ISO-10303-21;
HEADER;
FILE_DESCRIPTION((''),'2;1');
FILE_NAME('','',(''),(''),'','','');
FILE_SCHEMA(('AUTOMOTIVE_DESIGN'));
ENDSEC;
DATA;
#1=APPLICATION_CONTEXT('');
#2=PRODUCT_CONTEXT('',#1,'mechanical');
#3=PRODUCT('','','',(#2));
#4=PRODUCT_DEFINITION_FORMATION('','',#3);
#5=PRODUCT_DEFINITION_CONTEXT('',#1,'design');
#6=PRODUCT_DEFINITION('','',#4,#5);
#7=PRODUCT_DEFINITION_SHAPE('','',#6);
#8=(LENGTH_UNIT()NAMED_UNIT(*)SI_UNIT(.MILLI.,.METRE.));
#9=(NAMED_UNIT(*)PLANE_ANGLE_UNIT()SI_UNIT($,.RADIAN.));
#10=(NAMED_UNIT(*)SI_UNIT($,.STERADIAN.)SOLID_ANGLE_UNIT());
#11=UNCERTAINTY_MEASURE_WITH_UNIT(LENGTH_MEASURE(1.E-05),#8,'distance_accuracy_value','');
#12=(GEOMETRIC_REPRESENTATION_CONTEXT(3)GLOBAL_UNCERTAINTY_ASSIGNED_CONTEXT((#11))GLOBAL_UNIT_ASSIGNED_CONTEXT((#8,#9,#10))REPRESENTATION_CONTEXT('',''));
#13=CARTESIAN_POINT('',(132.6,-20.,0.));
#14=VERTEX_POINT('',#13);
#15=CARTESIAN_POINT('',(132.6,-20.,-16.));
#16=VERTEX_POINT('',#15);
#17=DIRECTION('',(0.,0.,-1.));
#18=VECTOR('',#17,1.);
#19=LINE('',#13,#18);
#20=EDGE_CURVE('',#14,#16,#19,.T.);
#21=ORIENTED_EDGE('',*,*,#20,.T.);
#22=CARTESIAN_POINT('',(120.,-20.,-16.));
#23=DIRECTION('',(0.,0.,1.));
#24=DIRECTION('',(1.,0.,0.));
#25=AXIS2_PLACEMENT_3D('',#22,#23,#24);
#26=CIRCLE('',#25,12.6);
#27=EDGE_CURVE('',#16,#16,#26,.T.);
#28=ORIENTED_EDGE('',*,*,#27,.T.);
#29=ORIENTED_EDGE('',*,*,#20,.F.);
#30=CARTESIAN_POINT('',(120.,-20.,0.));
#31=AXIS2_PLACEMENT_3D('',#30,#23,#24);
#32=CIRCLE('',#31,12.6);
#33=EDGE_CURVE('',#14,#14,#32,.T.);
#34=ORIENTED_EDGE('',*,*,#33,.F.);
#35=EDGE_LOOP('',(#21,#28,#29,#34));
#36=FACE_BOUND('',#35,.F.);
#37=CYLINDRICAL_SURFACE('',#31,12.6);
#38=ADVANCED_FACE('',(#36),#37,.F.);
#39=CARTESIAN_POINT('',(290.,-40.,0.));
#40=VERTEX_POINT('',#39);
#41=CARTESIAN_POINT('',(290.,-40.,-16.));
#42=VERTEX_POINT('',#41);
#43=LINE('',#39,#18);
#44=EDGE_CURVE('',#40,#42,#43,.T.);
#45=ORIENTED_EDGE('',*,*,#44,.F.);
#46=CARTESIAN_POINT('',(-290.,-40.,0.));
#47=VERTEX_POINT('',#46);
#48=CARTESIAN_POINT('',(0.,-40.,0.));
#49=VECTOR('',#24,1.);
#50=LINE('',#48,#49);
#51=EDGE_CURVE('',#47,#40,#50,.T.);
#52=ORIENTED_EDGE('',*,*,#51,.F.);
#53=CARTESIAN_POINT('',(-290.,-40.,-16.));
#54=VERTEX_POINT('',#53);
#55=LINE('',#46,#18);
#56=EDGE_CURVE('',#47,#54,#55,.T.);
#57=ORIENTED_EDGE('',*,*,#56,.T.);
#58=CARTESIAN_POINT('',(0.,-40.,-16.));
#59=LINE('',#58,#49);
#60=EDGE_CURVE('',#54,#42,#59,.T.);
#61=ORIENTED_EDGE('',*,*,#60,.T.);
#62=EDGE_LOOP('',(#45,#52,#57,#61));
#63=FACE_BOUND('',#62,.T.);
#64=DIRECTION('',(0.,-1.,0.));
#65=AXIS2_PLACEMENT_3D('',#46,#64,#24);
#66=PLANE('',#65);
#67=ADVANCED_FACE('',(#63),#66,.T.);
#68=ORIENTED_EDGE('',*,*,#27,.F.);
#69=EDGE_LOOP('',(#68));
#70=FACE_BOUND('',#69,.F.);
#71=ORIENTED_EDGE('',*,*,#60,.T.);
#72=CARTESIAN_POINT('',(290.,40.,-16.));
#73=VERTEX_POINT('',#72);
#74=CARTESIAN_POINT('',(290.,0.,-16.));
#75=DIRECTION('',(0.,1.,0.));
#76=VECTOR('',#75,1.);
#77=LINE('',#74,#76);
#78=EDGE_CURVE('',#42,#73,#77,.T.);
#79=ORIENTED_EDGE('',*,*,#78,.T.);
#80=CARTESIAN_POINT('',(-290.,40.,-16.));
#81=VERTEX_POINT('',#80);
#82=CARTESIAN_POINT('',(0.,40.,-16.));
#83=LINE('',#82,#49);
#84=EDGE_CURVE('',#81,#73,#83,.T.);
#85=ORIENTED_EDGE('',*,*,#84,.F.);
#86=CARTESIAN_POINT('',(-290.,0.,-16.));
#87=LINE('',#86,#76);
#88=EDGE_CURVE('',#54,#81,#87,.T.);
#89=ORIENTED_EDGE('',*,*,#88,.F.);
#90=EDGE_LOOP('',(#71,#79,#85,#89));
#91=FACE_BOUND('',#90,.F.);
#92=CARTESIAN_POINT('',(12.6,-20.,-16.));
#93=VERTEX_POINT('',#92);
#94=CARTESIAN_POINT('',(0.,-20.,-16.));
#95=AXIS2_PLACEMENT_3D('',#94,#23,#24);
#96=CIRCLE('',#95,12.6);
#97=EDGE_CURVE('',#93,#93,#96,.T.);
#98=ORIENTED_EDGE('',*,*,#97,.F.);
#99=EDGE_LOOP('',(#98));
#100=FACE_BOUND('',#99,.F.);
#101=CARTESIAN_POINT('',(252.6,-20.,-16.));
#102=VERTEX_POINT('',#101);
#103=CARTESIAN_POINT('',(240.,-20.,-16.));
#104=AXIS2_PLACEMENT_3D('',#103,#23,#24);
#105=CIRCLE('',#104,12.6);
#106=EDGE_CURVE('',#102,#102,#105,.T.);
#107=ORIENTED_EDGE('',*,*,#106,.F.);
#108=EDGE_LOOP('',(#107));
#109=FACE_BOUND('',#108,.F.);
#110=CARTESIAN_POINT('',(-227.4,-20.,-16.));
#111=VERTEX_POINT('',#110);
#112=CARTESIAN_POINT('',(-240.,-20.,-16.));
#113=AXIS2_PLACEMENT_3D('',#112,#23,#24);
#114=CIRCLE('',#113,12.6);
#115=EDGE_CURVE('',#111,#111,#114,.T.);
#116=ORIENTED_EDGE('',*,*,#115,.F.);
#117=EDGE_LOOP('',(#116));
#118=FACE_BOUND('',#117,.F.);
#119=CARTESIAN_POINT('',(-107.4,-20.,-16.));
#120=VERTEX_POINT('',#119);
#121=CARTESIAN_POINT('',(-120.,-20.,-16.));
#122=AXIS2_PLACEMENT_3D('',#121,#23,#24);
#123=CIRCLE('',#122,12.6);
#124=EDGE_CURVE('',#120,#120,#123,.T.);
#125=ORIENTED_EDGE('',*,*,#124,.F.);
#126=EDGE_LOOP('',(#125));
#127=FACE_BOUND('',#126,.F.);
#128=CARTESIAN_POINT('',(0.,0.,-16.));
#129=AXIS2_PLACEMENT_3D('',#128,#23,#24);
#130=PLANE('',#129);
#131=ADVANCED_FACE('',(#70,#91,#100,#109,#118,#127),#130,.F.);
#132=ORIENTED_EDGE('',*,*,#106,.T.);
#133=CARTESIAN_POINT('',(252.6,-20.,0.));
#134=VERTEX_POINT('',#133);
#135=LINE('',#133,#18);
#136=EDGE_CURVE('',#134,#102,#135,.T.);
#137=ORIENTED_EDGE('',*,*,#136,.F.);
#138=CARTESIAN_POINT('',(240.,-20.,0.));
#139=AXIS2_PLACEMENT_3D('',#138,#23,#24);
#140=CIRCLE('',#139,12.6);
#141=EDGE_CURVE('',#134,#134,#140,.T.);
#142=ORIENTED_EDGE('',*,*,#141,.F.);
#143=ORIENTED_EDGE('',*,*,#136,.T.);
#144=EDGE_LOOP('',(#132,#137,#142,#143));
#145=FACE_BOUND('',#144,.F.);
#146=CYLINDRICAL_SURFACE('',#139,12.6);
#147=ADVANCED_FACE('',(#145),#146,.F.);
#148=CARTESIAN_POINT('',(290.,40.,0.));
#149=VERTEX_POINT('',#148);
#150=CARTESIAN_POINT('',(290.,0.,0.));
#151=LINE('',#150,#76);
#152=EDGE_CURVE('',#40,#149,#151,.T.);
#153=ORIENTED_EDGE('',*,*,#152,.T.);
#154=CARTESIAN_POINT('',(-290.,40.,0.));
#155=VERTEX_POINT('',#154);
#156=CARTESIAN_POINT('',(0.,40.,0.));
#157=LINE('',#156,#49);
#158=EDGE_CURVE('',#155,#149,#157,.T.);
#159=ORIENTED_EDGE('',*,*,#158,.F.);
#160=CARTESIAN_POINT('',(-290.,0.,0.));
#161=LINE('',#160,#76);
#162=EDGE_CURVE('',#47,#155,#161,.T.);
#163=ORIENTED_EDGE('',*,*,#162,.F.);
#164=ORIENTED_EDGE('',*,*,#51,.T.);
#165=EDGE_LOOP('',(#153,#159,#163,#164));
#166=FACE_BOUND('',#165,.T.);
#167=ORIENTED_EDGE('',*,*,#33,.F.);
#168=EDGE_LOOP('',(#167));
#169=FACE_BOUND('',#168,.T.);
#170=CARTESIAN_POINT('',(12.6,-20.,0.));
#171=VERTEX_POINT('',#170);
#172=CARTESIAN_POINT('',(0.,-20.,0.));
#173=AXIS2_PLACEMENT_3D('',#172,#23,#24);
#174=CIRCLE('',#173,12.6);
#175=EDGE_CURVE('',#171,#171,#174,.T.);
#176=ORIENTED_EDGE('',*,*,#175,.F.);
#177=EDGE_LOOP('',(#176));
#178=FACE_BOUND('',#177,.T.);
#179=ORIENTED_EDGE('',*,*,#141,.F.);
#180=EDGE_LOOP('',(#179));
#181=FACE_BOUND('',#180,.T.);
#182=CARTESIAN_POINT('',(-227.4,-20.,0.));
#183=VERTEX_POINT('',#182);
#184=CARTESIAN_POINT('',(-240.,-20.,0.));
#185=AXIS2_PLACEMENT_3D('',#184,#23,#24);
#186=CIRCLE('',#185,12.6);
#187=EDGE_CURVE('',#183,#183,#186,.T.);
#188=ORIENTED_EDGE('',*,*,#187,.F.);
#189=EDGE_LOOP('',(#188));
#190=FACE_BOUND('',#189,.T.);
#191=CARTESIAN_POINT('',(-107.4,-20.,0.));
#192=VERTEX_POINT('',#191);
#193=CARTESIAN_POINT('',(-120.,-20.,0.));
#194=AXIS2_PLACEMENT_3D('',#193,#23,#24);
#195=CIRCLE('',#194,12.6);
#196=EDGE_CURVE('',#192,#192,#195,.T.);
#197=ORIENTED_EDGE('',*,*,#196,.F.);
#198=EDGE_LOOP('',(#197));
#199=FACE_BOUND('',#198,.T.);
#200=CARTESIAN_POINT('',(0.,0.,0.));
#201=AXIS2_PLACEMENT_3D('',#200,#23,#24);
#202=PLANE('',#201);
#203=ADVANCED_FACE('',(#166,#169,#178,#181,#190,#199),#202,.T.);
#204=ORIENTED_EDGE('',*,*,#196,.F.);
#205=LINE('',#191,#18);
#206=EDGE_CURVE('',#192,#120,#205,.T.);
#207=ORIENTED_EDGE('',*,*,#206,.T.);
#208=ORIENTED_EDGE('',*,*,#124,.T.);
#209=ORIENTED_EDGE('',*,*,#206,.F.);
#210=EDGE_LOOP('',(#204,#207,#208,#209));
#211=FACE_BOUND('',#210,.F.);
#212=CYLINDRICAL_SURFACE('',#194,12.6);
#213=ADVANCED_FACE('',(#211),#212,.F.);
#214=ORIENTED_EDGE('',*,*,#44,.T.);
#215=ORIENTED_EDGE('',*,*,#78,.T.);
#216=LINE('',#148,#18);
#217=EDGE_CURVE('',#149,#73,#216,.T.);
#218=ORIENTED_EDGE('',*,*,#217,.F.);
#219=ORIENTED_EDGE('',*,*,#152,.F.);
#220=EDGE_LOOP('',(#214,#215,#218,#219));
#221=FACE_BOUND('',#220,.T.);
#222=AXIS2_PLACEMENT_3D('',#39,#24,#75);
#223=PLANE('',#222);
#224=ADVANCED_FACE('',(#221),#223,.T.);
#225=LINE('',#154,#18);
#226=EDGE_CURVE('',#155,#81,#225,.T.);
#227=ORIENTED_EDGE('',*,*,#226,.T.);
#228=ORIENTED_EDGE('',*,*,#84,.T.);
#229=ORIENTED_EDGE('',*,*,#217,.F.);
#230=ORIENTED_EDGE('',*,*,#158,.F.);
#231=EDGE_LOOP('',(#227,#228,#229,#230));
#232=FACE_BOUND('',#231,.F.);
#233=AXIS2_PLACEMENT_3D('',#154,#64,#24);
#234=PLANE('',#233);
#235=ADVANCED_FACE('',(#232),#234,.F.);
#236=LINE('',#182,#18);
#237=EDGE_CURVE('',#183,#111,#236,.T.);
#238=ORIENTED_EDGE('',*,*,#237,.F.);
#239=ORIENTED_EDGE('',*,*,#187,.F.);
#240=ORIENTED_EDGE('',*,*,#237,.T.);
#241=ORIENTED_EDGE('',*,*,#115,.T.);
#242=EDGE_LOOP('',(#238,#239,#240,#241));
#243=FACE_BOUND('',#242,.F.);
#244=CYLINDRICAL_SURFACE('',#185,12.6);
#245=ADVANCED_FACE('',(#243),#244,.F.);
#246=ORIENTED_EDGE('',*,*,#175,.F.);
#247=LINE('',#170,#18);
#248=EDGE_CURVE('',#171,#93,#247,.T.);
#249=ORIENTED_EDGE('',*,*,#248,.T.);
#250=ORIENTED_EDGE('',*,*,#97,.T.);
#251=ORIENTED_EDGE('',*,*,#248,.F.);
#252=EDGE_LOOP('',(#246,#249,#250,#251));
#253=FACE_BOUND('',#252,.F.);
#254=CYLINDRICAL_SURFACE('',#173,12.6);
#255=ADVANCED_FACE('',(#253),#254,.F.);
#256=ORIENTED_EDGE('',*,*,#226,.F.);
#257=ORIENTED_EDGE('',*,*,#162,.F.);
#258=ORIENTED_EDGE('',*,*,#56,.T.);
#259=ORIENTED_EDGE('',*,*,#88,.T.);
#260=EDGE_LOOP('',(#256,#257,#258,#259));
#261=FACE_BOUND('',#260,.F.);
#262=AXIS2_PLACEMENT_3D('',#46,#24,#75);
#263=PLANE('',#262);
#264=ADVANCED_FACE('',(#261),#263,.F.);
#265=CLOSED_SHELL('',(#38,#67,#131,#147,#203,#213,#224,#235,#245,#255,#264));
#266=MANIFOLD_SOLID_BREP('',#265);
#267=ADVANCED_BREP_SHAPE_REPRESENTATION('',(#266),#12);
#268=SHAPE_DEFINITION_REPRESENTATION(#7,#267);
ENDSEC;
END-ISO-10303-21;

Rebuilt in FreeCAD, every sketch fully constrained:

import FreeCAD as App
import Part
import Sketcher
Q = App.Units.Quantity

doc = App.newDocument("Part")
body = doc.addObject("PartDesign::Body", "Body")

# Sketch on XY plane
sketch1 = body.newObject("Sketcher::SketchObject", "Sketch")
sketch1.AttachmentSupport = (doc.getObject("XY_Plane"), [""])
sketch1.MapMode = "FlatFace"
sketch1.addGeometry([
    Part.LineSegment(App.Vector(-290, 40, 0), App.Vector(-290, -40, 0)),  # 0
    Part.LineSegment(App.Vector(-290, -40, 0), App.Vector(290, -40, 0)),  # 1
    Part.LineSegment(App.Vector(290, -40, 0), App.Vector(290, 40, 0)),  # 2
    Part.LineSegment(App.Vector(290, 40, 0), App.Vector(-290, 40, 0)),  # 3
    Part.Circle(App.Vector(-240, -20, 0), App.Vector(0, 0, 1), 13),  # 4
    Part.Circle(App.Vector(-120, -20, 0), App.Vector(0, 0, 1), 13),  # 5
    Part.Circle(App.Vector(0, -20, 0), App.Vector(0, 0, 1), 13),  # 6
    Part.Circle(App.Vector(120, -20, 0), App.Vector(0, 0, 1), 13),  # 7
    Part.Circle(App.Vector(240, -20, 0), App.Vector(0, 0, 1), 13),  # 8
], False)
sketch1.addConstraint([
    Sketcher.Constraint("Coincident", 0, 2, 1, 1),
    Sketcher.Constraint("Coincident", 1, 2, 2, 1),
    Sketcher.Constraint("Coincident", 2, 2, 3, 1),
    Sketcher.Constraint("Coincident", 3, 2, 0, 1),
    Sketcher.Constraint("Vertical", 0),
    Sketcher.Constraint("Horizontal", 1),
    Sketcher.Constraint("Vertical", 2),
    Sketcher.Constraint("Horizontal", 3),
    Sketcher.Constraint("Equal", 4, 5),
    Sketcher.Constraint("Equal", 5, 6),
    Sketcher.Constraint("Equal", 6, 7),
    Sketcher.Constraint("Equal", 7, 8),
    Sketcher.Constraint("Symmetric", 0, 2, 2, 2, -1, 1),
    Sketcher.Constraint("Symmetric", 5, 3, 7, 3, -2),
    Sketcher.Constraint("Symmetric", 4, 3, 8, 3, -2),
    Sketcher.Constraint("PointOnObject", 6, 3, -2),
    Sketcher.Constraint("Horizontal", 4, 3, 5, 3),
    Sketcher.Constraint("Horizontal", 5, 3, 6, 3),
    Sketcher.Constraint("Diameter", 4, Q("25.2 mm")),
    Sketcher.Constraint("DistanceX", 1, 1, 1, 2, Q("580 mm")),
    Sketcher.Constraint("DistanceY", 0, 2, 0, 1, Q("80 mm")),
    Sketcher.Constraint("DistanceX", 4, 3, -1, 1, Q("240 mm")),
    Sketcher.Constraint("DistanceY", 4, 3, -1, 1, Q("20 mm")),
    Sketcher.Constraint("DistanceX", 5, 3, -1, 1, Q("120 mm")),
])
pad1 = body.newObject("PartDesign::Pad", "Pad")
pad1.Profile = sketch1
pad1.Length = 16
pad1.Reversed = True

doc.recompute()
